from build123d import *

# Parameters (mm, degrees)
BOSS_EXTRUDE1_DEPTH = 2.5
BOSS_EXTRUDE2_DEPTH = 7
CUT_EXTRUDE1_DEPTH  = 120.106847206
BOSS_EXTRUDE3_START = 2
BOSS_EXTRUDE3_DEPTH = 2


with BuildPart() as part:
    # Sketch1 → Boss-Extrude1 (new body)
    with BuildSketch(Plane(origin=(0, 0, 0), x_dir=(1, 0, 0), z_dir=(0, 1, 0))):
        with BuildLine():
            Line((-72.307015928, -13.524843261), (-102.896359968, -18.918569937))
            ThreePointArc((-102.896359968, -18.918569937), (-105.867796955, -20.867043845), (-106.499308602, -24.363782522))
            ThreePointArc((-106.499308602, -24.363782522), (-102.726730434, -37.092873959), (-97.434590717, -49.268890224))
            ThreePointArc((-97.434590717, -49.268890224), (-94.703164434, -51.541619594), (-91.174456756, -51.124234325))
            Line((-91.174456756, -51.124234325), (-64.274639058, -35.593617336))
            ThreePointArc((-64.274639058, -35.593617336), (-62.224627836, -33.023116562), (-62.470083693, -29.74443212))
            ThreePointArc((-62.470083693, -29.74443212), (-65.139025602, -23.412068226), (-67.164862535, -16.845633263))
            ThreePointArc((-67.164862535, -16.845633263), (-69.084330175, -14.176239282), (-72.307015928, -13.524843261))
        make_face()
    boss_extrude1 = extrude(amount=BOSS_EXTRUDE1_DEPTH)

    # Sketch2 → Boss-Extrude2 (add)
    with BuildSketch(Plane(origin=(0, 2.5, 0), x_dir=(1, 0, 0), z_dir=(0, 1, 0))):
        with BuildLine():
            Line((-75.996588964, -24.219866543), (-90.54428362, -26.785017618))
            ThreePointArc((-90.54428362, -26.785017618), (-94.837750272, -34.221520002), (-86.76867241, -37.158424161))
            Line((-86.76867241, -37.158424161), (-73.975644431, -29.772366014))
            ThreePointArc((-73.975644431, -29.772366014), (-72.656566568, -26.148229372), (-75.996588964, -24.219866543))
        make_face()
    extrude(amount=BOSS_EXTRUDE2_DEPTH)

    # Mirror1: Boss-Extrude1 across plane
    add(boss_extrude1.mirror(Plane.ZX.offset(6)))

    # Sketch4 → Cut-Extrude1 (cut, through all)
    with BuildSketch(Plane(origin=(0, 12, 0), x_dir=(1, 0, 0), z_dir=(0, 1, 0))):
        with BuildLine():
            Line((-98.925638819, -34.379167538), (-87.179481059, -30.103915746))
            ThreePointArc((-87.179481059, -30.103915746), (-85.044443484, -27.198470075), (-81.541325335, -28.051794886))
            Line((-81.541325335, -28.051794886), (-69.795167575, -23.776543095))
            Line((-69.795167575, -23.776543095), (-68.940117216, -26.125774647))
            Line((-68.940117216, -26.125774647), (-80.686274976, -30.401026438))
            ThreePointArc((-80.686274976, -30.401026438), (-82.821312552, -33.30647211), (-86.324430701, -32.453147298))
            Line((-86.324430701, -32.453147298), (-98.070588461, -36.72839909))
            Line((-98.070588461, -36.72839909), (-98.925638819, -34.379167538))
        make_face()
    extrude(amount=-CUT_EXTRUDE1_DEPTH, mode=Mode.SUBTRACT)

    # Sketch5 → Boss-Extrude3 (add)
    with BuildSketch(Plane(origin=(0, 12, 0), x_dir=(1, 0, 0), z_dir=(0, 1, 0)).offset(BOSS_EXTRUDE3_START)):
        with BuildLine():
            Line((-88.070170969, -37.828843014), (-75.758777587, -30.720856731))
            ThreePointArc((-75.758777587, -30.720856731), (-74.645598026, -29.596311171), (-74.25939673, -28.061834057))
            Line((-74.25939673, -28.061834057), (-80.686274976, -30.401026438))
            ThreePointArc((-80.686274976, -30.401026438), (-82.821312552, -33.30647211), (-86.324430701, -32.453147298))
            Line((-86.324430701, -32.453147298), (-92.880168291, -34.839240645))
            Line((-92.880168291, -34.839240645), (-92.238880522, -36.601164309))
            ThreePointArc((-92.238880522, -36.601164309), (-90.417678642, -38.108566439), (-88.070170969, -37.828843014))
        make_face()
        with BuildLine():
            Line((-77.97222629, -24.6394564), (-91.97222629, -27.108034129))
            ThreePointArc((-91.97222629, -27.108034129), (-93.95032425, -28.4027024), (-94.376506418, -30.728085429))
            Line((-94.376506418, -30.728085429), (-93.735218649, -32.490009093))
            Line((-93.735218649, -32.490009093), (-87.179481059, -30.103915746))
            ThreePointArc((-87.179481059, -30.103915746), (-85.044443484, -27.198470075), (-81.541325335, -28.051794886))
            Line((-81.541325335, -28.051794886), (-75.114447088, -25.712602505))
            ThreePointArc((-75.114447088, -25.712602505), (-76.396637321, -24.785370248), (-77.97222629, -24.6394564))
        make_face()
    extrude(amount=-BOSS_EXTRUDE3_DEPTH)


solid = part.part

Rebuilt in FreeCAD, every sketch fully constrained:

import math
import FreeCAD as App
import Part
import Sketcher
from FreeCAD import Vector
Q = App.Units.Quantity

doc = App.newDocument("Part")
body = doc.addObject("PartDesign::Body", "Body")

# Sketch on XZ plane
sketch1 = body.newObject("Sketcher::SketchObject", "Sketch")
sketch1.AttachmentSupport = (doc.getObject("XZ_Plane"), [""])
sketch1.MapMode = "FlatFace"
sketch1.addGeometry(Part.LineSegment(Vector(-72.307016, 13.524843, 0), Vector(-102.89636, 18.91857, 0)), False)
sketch1.addGeometry(Part.ArcOfCircle(Part.Circle(Vector(-102.114943, 23.350205, 0), Vector(0, 0, 1), 4.5), math.radians(166.983039), math.radians(260)), False)
sketch1.addGeometry(Part.ArcOfCircle(Part.Circle(Vector(-0.300235, -0.187322, 0), Vector(0, 0, 1), 109), math.radians(153.016961), math.radians(166.983039)), False)
sketch1.addGeometry(Part.ArcOfCircle(Part.Circle(Vector(-93.424457, 47.22712, 0), Vector(0, 0, 1), 4.5), math.radians(60), math.radians(153.016961)), False)
sketch1.addGeometry(Part.LineSegment(Vector(-91.174457, 51.124234, 0), Vector(-64.274639, 35.593617, 0)), False)
sketch1.addGeometry(Part.ArcOfCircle(Part.Circle(Vector(-66.524639, 31.696503, 0), Vector(0, 0, 1), 4.5), math.radians(-25.708549), math.radians(60)), False)
sketch1.addGeometry(Part.ArcOfCircle(Part.Circle(Vector(-0.300235, -0.187322, 0), Vector(0, 0, 1), 69), math.radians(154.291451), math.radians(165.708549)), False)
sketch1.addGeometry(Part.ArcOfCircle(Part.Circle(Vector(-71.525599, 17.956478, 0), Vector(0, 0, 1), 4.5), math.radians(-100), math.radians(-14.291451)), False)
sketch1.addConstraint(Sketcher.Constraint("Tangent", 0, 2, 1, 2))
sketch1.addConstraint(Sketcher.Constraint("Tangent", 1, 1, 2, 2))
sketch1.addConstraint(Sketcher.Constraint("Tangent", 2, 1, 3, 2))
sketch1.addConstraint(Sketcher.Constraint("Tangent", 3, 1, 4, 1))
sketch1.addConstraint(Sketcher.Constraint("Tangent", 4, 2, 5, 2))
sketch1.addConstraint(Sketcher.Constraint("Tangent", 5, 1, 6, 1))
sketch1.addConstraint(Sketcher.Constraint("Tangent", 6, 2, 7, 2))
sketch1.addConstraint(Sketcher.Constraint("Tangent", 7, 1, 0, 1))
sketch1.addConstraint(Sketcher.Constraint("Coincident", 6, 3, 2, 3))
sketch1.addConstraint(Sketcher.Constraint("Equal", 1, 3))
sketch1.addConstraint(Sketcher.Constraint("Equal", 3, 5))
sketch1.addConstraint(Sketcher.Constraint("Equal", 5, 7))
sketch1.addConstraint(Sketcher.Constraint("Equal", 0, 4))
sketch1.addConstraint(Sketcher.Constraint("Radius", 2, Q("109 mm")))
sketch1.addConstraint(Sketcher.Constraint("Radius", 6, Q("69 mm")))
sketch1.addConstraint(Sketcher.Constraint("Radius", 1, Q("4.5 mm")))
sketch1.addConstraint(Sketcher.Constraint("Angle", 0, Q("170 deg")))
sketch1.addConstraint(Sketcher.Constraint("Angle", 4, Q("-30 deg")))
sketch1.addConstraint(Sketcher.Constraint("DistanceX", 7, 3, -1, 1, Q("71.525599 mm")))
sketch1.addConstraint(Sketcher.Constraint("DistanceY", 1, 3, 5, 3, Q("8.346298 mm")))
sketch1.addConstraint(Sketcher.Constraint("DistanceY", 2, 3, -1, 1, Q("0.187322 mm")))
pad1 = body.newObject("PartDesign::Pad", "Pad")
pad1.Profile = sketch1
pad1.Length = 2.5
pad1.Reversed = True

# Sketch on XZ plane
sketch2 = body.newObject("Sketcher::SketchObject", "Sketch001")
sketch2.AttachmentSupport = (doc.getObject("XZ_Plane"), [""])
sketch2.MapMode = "FlatFace"
sketch2.AttachmentOffset = App.Placement(Vector(0, 0, -2.5), App.Rotation())
sketch2.addGeometry(Part.LineSegment(Vector(-75.996589, 24.219867, 0), Vector(-90.544284, 26.785018, 0)), False)
sketch2.addGeometry(Part.ArcOfCircle(Part.Circle(Vector(-89.571034, 32.304592, 0), Vector(0, 0, 1), 5.604723), math.radians(60), math.radians(260)), False)
sketch2.addGeometry(Part.LineSegment(Vector(-86.768672, 37.158424, 0), Vector(-73.975644, 29.772366, 0)), False)
sketch2.addGeometry(Part.ArcOfCircle(Part.Circle(Vector(-75.475644, 27.17429, 0), Vector(0, 0, 1), 3), math.radians(-100), math.radians(60)), False)
sketch2.addConstraint(Sketcher.Constraint("Tangent", 0, 2, 1, 2))
sketch2.addConstraint(Sketcher.Constraint("Tangent", 1, 1, 2, 1))
sketch2.addConstraint(Sketcher.Constraint("Tangent", 2, 2, 3, 2))
sketch2.addConstraint(Sketcher.Constraint("Tangent", 3, 1, 0, 1))
sketch2.addConstraint(Sketcher.Constraint("Radius", 3, Q("3 mm")))
sketch2.addConstraint(Sketcher.Constraint("Angle", 0, Q("170 deg")))
sketch2.addConstraint(Sketcher.Constraint("Angle", 2, Q("-30 deg")))
sketch2.addConstraint(Sketcher.Constraint("Radius", 1, Q("5.604723 mm")))
sketch2.addConstraint(Sketcher.Constraint("DistanceY", -1, 1, 1, 3, Q("32.304592 mm")))
sketch2.addConstraint(Sketcher.Constraint("DistanceX", 3, 1, -1, 1, Q("75.996589 mm")))
pad2 = body.newObject("PartDesign::Pad", "Pad001")
pad2.Profile = sketch2
pad2.Length = 7
pad2.Reversed = True
doc.recompute()

datumplane = body.newObject("PartDesign::Plane", "DatumPlane")
datumplane.AttachmentSupport = (doc.getObject("XZ_Plane"), [""])
datumplane.MapMode = "FlatFace"
datumplane.AttachmentOffset = App.Placement(Vector(0, 0, -6), App.Rotation())
mirrored = body.newObject("PartDesign::Mirrored", "Mirrored")
mirrored.Originals = [pad1]
mirrored.MirrorPlane = (datumplane, [""])
body.Tip = mirrored

# Sketch on XZ plane
sketch3 = body.newObject("Sketcher::SketchObject", "Sketch002")
sketch3.AttachmentSupport = (doc.getObject("XZ_Plane"), [""])
sketch3.MapMode = "FlatFace"
sketch3.AttachmentOffset = App.Placement(Vector(0, 0, -12), App.Rotation())
sketch3.addGeometry(Part.LineSegment(Vector(-87.179481, 30.103916, 0), Vector(-98.925639, 34.379168, 0)), False)
sketch3.addGeometry(Part.LineSegment(Vector(-98.925639, 34.379168, 0), Vector(-98.070588, 36.728399, 0)), False)
sketch3.addGeometry(Part.LineSegment(Vector(-98.070588, 36.728399, 0), Vector(-86.324431, 32.453147, 0)), False)
sketch3.addGeometry(Part.ArcOfCircle(Part.Circle(Vector(-83.932878, 30.252471, 0), Vector(0, 0, 1), 3.25), math.radians(2.619865), math.radians(137.380135)), False)
sketch3.addGeometry(Part.LineSegment(Vector(-80.686275, 30.401026, 0), Vector(-68.940117, 26.125775, 0)), False)
sketch3.addGeometry(Part.LineSegment(Vector(-68.940117, 26.125775, 0), Vector(-69.795168, 23.776543, 0)), False)
sketch3.addGeometry(Part.LineSegment(Vector(-69.795168, 23.776543, 0), Vector(-81.541325, 28.051795, 0)), False)
sketch3.addGeometry(Part.ArcOfCircle(Part.Circle(Vector(-83.932878, 30.252471, 0), Vector(0, 0, 1), 3.25), math.radians(-177.380135), math.radians(-42.619865)), False)
sketch3.addConstraint(Sketcher.Constraint("Coincident", 0, 2, 1, 1))
sketch3.addConstraint(Sketcher.Constraint("Coincident", 1, 2, 2, 1))
sketch3.addConstraint(Sketcher.Constraint("Coincident", 2, 2, 3, 2))
sketch3.addConstraint(Sketcher.Constraint("Coincident", 3, 1, 4, 1))
sketch3.addConstraint(Sketcher.Constraint("Coincident", 4, 2, 5, 1))
sketch3.addConstraint(Sketcher.Constraint("Coincident", 5, 2, 6, 1))
sketch3.addConstraint(Sketcher.Constraint("Coincident", 6, 2, 7, 2))
sketch3.addConstraint(Sketcher.Constraint("Coincident", 7, 1, 0, 1))
sketch3.addConstraint(Sketcher.Constraint("Coincident", 7, 3, 3, 3))
sketch3.addConstraint(Sketcher.Constraint("Equal", 3, 7))
sketch3.addConstraint(Sketcher.Constraint("Perpendicular", 0, 1))
sketch3.addConstraint(Sketcher.Constraint("Perpendicular", 1, 2))
sketch3.addConstraint(Sketcher.Constraint("Parallel", 2, 4))
sketch3.addConstraint(Sketcher.Constraint("Perpendicular", 4, 5))
sketch3.addConstraint(Sketcher.Constraint("Perpendicular", 5, 6))
sketch3.addConstraint(Sketcher.Constraint("Equal", 0, 2))
sketch3.addConstraint(Sketcher.Constraint("Equal", 2, 4))
sketch3.addConstraint(Sketcher.Constraint("Equal", 1, 5))
sketch3.addConstraint(Sketcher.Constraint("Equal", 4, 6))
sketch3.addConstraint(Sketcher.Constraint("Angle", 0, Q("160 deg")))
sketch3.addConstraint(Sketcher.Constraint("Radius", 3, Q("3.25 mm")))
sketch3.addConstraint(Sketcher.Constraint("Distance", 0, Q("12.5 mm")))
sketch3.addConstraint(Sketcher.Constraint("Distance", 1, Q("2.5 mm")))
sketch3.addConstraint(Sketcher.Constraint("DistanceY", -1, 1, 1, 2, Q("36.728399 mm")))
sketch3.addConstraint(Sketcher.Constraint("DistanceX", 3, 3, -1, 1, Q("83.932878 mm")))
pocket1 = body.newObject("PartDesign::Pocket", "Pocket")
pocket1.Profile = sketch3
pocket1.Type = "ThroughAll"
pocket1.Reversed = True

# Sketch on XZ plane
sketch4 = body.newObject("Sketcher::SketchObject", "Sketch003")
sketch4.AttachmentSupport = (doc.getObject("XZ_Plane"), [""])
sketch4.MapMode = "FlatFace"
sketch4.AttachmentOffset = App.Placement(Vector(0, 0, -14), App.Rotation())
sketch4.addGeometry(Part.LineSegment(Vector(-88.070171, 37.828843, 0), Vector(-75.758778, 30.720857, 0)), False)
sketch4.addGeometry(Part.ArcOfCircle(Part.Circle(Vector(-77.258778, 28.122781, 0), Vector(0, 0, 1), 3), math.radians(-1.164072), math.radians(60)), False)
sketch4.addGeometry(Part.LineSegment(Vector(-74.259397, 28.061834, 0), Vector(-80.686275, 30.401026, 0)), False)
sketch4.addGeometry(Part.ArcOfCircle(Part.Circle(Vector(-83.932878, 30.252471, 0), Vector(0, 0, 1), 3.25), math.radians(2.619865), math.radians(137.380135)), False)
sketch4.addGeometry(Part.LineSegment(Vector(-86.324431, 32.453147, 0), Vector(-92.880168, 34.839241, 0)), False)
sketch4.addGeometry(Part.LineSegment(Vector(-92.880168, 34.839241, 0), Vector(-92.238881, 36.601164, 0)), False)
sketch4.addGeometry(Part.ArcOfCircle(Part.Circle(Vector(-89.570171, 35.230767, 0), Vector(0, 0, 1), 3), math.radians(60), math.radians(152.819244)), False)
sketch4.addGeometry(Part.LineSegment(Vector(-77.972226, 24.639456, 0), Vector(-91.972226, 27.108034, 0)), False)
sketch4.addGeometry(Part.ArcOfCircle(Part.Circle(Vector(-91.451282, 30.062457, 0), Vector(0, 0, 1), 3), math.radians(167.180756), math.radians(260)), False)
sketch4.addGeometry(Part.LineSegment(Vector(-94.376506, 30.728085, 0), Vector(-93.735219, 32.490009, 0)), False)
sketch4.addGeometry(Part.LineSegment(Vector(-93.735219, 32.490009, 0), Vector(-87.179481, 30.103916, 0)), False)
sketch4.addGeometry(Part.ArcOfCircle(Part.Circle(Vector(-83.932878, 30.252471, 0), Vector(0, 0, 1), 3.25), math.radians(-177.380135), math.radians(-42.619865)), False)
sketch4.addGeometry(Part.LineSegment(Vector(-81.541325, 28.051795, 0), Vector(-75.114447, 25.712603, 0)), False)
sketch4.addGeometry(Part.ArcOfCircle(Part.Circle(Vector(-77.451282, 27.59388, 0), Vector(0, 0, 1), 3), math.radians(-100), math.radians(-38.835928)), False)
sketch4.addConstraint(Sketcher.Constraint("Tangent", 0, 2, 1, 2))
sketch4.addConstraint(Sketcher.Constraint("Coincident", 1, 1, 2, 1))
sketch4.addConstraint(Sketcher.Constraint("Coincident", 2, 2, 3, 1))
sketch4.addConstraint(Sketcher.Constraint("Coincident", 3, 2, 4, 1))
sketch4.addConstraint(Sketcher.Constraint("Coincident", 4, 2, 5, 1))
sketch4.addConstraint(Sketcher.Constraint("Coincident", 5, 2, 6, 2))
sketch4.addConstraint(Sketcher.Constraint("Tangent", 6, 1, 0, 1))
sketch4.addConstraint(Sketcher.Constraint("Tangent", 7, 2, 8, 2))
sketch4.addConstraint(Sketcher.Constraint("Coincident", 8, 1, 9, 1))
sketch4.addConstraint(Sketcher.Constraint("Coincident", 9, 2, 10, 1))
sketch4.addConstraint(Sketcher.Constraint("Coincident", 10, 2, 11, 1))
sketch4.addConstraint(Sketcher.Constraint("Coincident", 11, 2, 12, 1))
sketch4.addConstraint(Sketcher.Constraint("Coincident", 12, 2, 13, 2))
sketch4.addConstraint(Sketcher.Constraint("Tangent", 13, 1, 7, 1))
sketch4.addConstraint(Sketcher.Constraint("Coincident", 11, 3, 3, 3))
sketch4.addConstraint(Sketcher.Constraint("Equal", 1, 6))
sketch4.addConstraint(Sketcher.Constraint("Equal", 6, 8))
sketch4.addConstraint(Sketcher.Constraint("Equal", 3, 11))
sketch4.addConstraint(Sketcher.Constraint("Equal", 8, 13))
sketch4.addConstraint(Sketcher.Constraint("Parallel", 2, 4))
sketch4.addConstraint(Sketcher.Constraint("Perpendicular", 4, 5))
sketch4.addConstraint(Sketcher.Constraint("Parallel", 5, 9))
sketch4.addConstraint(Sketcher.Constraint("Perpendicular", 9, 10))
sketch4.addConstraint(Sketcher.Constraint("Parallel", 10, 12))
sketch4.addConstraint(Sketcher.Constraint("Equal", 0, 7))
sketch4.addConstraint(Sketcher.Constraint("Equal", 5, 9))
sketch4.addConstraint(Sketcher.Constraint("Equal", 4, 10))
sketch4.addConstraint(Sketcher.Constraint("Equal", 2, 12))
sketch4.addConstraint(Sketcher.Constraint("Radius", 1, Q("3 mm")))
sketch4.addConstraint(Sketcher.Constraint("Angle", 0, Q("-30 deg")))
sketch4.addConstraint(Sketcher.Constraint("Angle", 2, Q("160 deg")))
sketch4.addConstraint(Sketcher.Constraint("Angle", 7, Q("170 deg")))
sketch4.addConstraint(Sketcher.Constraint("Radius", 3, Q("3.25 mm")))
sketch4.addConstraint(Sketcher.Constraint("DistanceX", 8, 3, 13, 3, Q("14 mm")))
sketch4.addConstraint(Sketcher.Constraint("Distance", 5, Q("1.875 mm")))
sketch4.addConstraint(Sketcher.Constraint("DistanceX", 3, 3, 1, 3, Q("6.6741 mm")))
sketch4.addConstraint(Sketcher.Constraint("DistanceY", 13, 3, 1, 3, Q("0.528901 mm")))
sketch4.addConstraint(Sketcher.Constraint("DistanceX", 5, 2, 8, 3, Q("0.787599 mm")))
sketch4.addConstraint(Sketcher.Constraint("DistanceX", 8, 3, 10, 2, Q("4.271801 mm")))
sketch4.addConstraint(Sketcher.Constraint("DistanceX", 11, 2, 13, 1, Q("3.569099 mm")))
sketch4.addConstraint(Sketcher.Constraint("Distance", 2, Q("6.839341 mm")))
sketch4.addConstraint(Sketcher.Constraint("DistanceY", -1, 1, 1, 3, Q("28.122781 mm")))
sketch4.addConstraint(Sketcher.Constraint("DistanceX", 3, 3, -1, 1, Q("83.932878 mm")))
pad3 = body.newObject("PartDesign::Pad", "Pad002")
pad3.Profile = sketch4
pad3.Length = 2

doc.recompute()
